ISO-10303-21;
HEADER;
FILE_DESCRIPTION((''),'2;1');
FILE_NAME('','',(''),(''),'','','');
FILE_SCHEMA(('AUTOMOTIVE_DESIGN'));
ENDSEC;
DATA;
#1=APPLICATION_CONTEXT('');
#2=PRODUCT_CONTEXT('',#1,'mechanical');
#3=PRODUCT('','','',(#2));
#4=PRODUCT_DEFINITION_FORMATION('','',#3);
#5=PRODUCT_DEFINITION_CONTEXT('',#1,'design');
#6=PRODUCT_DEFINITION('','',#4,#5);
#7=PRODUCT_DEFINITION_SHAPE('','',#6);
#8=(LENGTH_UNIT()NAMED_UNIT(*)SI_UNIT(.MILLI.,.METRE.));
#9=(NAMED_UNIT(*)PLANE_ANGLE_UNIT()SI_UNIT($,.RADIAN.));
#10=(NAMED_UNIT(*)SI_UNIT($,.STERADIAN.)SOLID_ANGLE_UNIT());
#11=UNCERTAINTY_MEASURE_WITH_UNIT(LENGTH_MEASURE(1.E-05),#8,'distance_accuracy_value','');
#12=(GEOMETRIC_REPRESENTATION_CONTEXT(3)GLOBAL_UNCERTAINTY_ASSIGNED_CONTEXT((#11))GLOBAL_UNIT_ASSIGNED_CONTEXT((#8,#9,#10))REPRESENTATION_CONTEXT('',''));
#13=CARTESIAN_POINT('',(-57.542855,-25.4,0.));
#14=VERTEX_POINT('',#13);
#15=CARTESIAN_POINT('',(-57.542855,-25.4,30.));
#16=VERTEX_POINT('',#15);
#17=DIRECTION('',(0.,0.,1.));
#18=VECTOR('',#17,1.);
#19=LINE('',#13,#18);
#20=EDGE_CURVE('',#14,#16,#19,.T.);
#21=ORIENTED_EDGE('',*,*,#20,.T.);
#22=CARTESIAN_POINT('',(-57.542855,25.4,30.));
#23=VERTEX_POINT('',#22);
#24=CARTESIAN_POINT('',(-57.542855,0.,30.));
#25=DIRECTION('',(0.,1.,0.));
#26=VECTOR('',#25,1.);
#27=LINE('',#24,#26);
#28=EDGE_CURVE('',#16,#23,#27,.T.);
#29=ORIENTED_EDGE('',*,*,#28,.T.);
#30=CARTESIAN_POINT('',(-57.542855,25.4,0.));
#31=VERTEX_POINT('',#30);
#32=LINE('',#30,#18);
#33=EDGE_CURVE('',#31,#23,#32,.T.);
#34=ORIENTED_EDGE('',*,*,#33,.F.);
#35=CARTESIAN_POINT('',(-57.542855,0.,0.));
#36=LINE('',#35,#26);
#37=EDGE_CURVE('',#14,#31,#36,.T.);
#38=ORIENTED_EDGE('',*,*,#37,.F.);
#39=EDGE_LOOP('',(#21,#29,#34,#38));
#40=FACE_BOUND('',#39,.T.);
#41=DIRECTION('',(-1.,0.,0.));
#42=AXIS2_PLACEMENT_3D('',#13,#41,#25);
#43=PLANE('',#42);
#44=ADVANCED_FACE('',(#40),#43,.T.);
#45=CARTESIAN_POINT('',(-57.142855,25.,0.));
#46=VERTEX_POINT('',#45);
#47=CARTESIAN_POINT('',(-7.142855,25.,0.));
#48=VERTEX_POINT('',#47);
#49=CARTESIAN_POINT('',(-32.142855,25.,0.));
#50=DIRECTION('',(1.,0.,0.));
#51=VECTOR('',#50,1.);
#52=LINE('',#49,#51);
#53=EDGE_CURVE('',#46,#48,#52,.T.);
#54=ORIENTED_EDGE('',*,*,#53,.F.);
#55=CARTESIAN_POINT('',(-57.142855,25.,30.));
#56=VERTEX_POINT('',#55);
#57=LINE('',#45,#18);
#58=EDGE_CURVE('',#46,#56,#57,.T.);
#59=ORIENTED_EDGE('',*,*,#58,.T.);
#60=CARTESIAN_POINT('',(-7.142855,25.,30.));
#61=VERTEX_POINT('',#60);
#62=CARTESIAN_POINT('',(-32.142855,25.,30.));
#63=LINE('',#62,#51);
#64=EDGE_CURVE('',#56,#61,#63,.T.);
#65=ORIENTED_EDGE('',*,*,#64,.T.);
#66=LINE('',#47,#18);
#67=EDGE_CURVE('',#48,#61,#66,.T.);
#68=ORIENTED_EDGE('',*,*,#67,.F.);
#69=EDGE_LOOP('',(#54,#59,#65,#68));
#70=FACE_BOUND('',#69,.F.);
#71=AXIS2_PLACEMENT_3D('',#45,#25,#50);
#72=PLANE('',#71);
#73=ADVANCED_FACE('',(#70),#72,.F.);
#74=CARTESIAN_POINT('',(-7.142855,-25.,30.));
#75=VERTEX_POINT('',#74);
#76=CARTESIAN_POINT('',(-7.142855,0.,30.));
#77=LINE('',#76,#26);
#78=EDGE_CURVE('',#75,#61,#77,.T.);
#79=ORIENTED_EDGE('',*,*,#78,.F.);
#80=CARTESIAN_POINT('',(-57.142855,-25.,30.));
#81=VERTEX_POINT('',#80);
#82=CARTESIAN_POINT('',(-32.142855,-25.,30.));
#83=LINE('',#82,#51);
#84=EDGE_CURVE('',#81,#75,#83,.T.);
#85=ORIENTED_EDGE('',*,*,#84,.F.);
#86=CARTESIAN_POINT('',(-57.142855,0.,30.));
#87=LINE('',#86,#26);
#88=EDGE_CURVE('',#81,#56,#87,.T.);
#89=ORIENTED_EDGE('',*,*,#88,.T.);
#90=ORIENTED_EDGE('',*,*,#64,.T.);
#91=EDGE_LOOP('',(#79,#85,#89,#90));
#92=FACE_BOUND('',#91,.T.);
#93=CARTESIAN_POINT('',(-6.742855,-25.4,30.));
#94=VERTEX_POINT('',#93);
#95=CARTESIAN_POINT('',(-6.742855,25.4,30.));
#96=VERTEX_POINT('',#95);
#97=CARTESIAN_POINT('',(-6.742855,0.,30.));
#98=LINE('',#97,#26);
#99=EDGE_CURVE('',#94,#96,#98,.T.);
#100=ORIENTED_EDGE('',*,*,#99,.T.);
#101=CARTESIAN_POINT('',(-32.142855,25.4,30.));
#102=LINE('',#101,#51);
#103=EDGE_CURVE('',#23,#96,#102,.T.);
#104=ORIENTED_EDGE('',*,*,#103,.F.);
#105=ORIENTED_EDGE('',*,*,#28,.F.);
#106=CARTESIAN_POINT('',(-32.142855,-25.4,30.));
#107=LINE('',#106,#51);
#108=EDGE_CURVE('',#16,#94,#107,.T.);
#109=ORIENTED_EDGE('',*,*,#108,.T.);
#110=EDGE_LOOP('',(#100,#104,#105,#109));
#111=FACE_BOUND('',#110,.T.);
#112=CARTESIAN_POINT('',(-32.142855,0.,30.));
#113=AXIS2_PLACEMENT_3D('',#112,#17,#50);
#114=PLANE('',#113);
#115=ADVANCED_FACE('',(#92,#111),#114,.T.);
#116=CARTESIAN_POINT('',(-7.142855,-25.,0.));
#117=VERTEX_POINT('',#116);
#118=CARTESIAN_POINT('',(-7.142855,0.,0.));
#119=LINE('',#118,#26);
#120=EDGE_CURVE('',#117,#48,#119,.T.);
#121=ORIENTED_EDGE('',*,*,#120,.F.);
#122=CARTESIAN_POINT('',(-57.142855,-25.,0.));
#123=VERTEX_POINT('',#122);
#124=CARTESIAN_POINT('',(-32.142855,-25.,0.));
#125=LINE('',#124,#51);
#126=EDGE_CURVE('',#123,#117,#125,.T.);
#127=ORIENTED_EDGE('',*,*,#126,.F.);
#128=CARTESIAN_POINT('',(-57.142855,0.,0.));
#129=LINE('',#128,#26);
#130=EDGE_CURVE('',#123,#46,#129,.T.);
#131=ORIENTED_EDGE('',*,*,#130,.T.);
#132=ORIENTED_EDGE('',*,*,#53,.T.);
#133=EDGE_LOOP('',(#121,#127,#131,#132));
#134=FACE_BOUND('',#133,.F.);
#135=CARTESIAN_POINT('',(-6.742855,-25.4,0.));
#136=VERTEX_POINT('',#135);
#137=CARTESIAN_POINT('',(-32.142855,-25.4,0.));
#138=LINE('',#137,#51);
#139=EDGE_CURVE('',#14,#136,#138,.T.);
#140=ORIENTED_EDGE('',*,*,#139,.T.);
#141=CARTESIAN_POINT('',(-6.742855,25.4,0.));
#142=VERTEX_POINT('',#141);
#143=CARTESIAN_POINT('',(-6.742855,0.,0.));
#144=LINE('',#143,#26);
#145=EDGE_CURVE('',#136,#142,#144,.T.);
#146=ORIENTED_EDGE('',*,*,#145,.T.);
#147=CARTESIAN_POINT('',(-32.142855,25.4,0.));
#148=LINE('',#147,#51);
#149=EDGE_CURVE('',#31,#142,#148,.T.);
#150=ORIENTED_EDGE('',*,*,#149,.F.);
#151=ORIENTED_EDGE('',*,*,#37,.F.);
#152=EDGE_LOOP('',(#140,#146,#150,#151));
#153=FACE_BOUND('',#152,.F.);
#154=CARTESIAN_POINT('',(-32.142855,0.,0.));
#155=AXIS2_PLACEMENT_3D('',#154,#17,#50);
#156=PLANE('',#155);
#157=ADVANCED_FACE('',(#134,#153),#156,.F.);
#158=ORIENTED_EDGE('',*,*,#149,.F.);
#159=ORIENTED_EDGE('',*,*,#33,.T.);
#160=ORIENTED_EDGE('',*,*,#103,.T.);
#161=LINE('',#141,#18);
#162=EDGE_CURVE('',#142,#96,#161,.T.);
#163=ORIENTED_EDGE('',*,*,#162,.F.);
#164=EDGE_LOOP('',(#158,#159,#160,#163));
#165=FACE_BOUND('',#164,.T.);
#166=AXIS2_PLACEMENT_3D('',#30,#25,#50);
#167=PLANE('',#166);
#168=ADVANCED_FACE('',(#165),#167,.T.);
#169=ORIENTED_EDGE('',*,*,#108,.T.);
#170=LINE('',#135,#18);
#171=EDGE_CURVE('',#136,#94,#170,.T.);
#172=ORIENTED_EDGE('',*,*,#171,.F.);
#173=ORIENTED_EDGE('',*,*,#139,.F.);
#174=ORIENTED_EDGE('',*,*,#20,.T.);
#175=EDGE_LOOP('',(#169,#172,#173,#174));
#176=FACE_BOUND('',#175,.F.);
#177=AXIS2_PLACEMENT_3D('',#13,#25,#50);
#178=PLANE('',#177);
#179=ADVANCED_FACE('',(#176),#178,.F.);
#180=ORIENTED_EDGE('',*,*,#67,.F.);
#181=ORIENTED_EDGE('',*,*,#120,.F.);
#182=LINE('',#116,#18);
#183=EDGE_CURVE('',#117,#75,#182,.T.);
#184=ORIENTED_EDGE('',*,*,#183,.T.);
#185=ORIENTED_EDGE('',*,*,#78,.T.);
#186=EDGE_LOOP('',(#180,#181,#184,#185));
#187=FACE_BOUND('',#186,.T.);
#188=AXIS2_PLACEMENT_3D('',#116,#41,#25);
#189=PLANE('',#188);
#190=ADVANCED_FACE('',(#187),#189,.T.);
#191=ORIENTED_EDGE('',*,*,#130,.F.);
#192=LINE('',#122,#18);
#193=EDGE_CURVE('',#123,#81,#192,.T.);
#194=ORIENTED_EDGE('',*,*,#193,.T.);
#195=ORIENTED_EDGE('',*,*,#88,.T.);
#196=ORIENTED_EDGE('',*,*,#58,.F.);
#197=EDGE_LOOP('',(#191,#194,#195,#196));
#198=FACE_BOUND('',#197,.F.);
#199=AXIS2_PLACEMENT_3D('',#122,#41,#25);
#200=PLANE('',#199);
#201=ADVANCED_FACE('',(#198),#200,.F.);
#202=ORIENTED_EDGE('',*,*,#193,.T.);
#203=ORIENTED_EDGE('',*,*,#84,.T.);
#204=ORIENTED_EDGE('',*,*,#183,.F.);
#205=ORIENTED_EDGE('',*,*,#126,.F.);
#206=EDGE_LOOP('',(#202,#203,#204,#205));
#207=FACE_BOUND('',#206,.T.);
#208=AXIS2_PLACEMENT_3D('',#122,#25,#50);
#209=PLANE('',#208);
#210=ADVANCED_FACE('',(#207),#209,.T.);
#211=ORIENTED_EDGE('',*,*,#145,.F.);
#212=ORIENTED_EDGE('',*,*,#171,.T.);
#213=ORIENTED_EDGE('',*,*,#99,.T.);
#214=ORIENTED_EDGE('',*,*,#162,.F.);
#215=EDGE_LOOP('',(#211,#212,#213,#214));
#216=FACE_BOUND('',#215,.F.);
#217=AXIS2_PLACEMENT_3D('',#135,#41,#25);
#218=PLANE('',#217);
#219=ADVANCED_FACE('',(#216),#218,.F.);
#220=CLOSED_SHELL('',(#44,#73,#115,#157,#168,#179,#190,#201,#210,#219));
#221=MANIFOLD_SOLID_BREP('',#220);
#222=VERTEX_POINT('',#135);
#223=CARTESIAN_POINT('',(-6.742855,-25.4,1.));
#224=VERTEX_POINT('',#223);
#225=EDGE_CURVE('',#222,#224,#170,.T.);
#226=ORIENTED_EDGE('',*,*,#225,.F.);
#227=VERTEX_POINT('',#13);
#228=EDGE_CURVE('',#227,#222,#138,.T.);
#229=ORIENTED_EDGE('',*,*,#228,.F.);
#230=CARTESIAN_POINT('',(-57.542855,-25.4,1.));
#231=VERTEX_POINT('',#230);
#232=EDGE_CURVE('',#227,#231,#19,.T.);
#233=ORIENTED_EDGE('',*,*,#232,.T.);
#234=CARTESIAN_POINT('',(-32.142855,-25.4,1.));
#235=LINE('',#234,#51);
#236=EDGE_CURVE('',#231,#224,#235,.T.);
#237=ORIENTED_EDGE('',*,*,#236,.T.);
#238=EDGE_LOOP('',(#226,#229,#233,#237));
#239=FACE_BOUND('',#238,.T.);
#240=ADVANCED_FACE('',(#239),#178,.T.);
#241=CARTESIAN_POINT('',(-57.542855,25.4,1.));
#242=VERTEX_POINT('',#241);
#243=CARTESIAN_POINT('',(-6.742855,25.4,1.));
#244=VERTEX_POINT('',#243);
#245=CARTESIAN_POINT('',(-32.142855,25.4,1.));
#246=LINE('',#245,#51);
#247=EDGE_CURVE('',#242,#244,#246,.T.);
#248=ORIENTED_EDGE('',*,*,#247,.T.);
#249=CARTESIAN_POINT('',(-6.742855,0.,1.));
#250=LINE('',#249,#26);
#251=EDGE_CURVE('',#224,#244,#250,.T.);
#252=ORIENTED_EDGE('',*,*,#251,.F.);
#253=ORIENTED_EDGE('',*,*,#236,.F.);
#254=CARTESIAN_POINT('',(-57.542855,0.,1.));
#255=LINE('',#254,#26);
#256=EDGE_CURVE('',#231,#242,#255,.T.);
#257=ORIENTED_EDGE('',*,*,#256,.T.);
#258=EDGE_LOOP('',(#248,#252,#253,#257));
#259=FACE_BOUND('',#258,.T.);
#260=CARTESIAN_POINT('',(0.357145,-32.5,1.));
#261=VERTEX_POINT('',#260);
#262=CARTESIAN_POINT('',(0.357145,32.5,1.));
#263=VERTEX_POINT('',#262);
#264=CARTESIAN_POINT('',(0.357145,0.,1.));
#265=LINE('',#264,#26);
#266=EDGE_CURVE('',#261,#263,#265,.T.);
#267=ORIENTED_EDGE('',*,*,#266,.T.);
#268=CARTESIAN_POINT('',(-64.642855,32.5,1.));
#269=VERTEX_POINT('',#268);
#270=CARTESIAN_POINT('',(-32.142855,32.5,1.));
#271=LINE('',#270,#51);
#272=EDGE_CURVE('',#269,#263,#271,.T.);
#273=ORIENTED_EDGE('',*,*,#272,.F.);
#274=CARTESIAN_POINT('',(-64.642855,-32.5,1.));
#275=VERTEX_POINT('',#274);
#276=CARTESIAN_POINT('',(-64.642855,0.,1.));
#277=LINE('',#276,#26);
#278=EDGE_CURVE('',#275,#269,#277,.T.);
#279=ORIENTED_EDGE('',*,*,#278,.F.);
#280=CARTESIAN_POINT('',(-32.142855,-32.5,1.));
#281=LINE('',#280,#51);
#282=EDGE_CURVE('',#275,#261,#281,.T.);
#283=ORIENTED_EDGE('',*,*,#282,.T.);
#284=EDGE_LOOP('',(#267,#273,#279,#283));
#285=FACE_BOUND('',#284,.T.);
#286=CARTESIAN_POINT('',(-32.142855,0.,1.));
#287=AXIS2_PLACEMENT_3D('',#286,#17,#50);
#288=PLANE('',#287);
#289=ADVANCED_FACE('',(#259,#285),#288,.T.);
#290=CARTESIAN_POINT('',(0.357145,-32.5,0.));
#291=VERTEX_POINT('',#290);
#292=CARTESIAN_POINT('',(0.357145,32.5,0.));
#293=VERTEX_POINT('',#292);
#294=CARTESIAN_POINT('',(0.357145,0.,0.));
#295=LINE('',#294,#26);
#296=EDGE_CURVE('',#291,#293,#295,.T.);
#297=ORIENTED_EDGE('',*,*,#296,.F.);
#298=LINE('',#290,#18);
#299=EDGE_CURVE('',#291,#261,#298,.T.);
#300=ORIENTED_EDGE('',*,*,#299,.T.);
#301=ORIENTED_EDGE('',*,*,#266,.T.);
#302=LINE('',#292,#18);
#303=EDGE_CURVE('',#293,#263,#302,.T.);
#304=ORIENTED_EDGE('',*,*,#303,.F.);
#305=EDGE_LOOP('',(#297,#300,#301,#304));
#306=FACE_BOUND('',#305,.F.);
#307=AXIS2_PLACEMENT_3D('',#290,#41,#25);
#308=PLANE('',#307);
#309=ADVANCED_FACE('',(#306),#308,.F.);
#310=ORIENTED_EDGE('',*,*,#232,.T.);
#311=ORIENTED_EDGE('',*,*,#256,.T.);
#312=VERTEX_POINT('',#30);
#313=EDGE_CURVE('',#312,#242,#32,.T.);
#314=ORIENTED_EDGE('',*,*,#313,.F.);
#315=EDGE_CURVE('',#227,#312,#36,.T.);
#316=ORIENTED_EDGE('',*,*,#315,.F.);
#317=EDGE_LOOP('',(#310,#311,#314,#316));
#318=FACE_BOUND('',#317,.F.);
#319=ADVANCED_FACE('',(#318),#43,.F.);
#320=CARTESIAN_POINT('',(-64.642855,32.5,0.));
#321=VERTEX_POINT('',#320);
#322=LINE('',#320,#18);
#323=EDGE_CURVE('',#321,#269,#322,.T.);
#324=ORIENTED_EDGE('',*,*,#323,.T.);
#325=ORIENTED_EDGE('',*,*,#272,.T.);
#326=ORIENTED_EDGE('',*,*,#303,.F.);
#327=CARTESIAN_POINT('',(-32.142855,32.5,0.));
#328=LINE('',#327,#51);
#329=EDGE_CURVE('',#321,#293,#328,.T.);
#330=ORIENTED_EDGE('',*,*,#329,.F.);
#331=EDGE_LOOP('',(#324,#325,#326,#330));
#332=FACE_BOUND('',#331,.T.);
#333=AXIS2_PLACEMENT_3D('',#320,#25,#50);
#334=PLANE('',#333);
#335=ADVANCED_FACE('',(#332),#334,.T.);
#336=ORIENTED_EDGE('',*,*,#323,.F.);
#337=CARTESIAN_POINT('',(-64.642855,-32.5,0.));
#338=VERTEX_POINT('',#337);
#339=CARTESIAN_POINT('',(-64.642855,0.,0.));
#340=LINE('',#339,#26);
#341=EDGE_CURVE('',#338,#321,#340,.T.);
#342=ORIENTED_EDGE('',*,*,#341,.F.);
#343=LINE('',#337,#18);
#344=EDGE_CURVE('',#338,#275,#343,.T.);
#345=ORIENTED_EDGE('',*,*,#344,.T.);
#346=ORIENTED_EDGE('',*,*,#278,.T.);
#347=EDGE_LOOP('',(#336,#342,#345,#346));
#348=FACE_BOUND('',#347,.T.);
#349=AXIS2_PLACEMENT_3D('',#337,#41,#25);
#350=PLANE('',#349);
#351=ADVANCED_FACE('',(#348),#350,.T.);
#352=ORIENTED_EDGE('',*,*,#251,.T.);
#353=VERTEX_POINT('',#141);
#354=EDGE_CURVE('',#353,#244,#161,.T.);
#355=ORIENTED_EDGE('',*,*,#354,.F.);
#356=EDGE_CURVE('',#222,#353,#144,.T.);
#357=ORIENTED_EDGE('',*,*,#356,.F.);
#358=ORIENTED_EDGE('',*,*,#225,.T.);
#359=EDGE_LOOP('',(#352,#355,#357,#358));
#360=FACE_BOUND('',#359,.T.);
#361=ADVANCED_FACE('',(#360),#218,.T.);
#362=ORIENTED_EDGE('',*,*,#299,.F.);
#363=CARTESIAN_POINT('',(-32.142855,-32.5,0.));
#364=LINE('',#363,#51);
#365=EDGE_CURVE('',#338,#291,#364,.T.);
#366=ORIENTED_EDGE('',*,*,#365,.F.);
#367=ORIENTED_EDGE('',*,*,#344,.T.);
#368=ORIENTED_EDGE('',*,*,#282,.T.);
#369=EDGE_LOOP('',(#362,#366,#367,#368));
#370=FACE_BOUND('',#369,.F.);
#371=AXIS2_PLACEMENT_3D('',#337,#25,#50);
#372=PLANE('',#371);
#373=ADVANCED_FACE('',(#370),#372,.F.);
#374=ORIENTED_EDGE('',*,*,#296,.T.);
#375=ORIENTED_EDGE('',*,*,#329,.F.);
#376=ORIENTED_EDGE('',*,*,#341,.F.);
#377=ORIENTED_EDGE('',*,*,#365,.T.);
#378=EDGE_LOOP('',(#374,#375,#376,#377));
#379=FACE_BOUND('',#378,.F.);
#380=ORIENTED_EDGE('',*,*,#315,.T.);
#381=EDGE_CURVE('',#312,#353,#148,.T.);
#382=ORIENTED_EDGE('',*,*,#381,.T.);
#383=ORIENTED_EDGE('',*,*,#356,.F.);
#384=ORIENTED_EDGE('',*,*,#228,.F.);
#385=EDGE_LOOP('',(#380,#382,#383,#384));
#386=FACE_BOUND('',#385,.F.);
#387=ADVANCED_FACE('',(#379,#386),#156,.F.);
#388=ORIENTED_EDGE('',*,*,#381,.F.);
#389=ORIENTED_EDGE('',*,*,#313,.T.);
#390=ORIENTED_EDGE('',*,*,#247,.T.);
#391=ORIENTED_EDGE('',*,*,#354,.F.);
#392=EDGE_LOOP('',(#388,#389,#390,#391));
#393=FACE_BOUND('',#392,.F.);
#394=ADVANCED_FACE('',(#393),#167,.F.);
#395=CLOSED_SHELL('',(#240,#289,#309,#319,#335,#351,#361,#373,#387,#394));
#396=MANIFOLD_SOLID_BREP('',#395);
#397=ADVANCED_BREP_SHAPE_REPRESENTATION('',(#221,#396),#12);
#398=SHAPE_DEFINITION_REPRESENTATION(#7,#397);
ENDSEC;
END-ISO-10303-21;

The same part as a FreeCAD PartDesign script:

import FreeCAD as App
import Part
import Sketcher
from FreeCAD import Vector
Q = App.Units.Quantity


def add_polygon(sketch, points):
    """Adds a closed chain of lines whose ends are joined by coincident constraints."""
    first, n = sketch.GeometryCount, len(points)
    for a, b in zip(points, points[1:] + points[:1]):
        sketch.addGeometry(Part.LineSegment(App.Vector(*a, 0), App.Vector(*b, 0)), False)
    for i in range(n):
        sketch.addConstraint(Sketcher.Constraint("Coincident", first + i, 2, first + (i + 1) % n, 1))

doc = App.newDocument("Part")
body = doc.addObject("PartDesign::Body", "Body")

# Sketch on XY plane
sketch1 = body.newObject("Sketcher::SketchObject", "Sketch")
sketch1.AttachmentSupport = (doc.getObject("XY_Plane"), [""])
sketch1.MapMode = "FlatFace"
add_polygon(sketch1, [(-57.542855, 25.4), (-57.542855, -25.4), (-6.742855, -25.4), (-6.742855, 25.4)])  # lines 0-3
add_polygon(sketch1, [(-7.142855, -25), (-57.142855, -25), (-57.142855, 25), (-7.142855, 25)])  # lines 4-7
sketch1.addConstraint([
    Sketcher.Constraint("Vertical", 0),
    Sketcher.Constraint("Horizontal", 1),
    Sketcher.Constraint("Vertical", 2),
    Sketcher.Constraint("Horizontal", 3),
    Sketcher.Constraint("Horizontal", 4),
    Sketcher.Constraint("Vertical", 5),
    Sketcher.Constraint("Horizontal", 6),
    Sketcher.Constraint("Vertical", 7),
    Sketcher.Constraint("Equal", 3, 0),
    Sketcher.Constraint("Equal", 6, 5),
    Sketcher.Constraint("DistanceX", 4, 2, 4, 1, Q("50 mm")),
    Sketcher.Constraint("DistanceX", 1, 1, 1, 2, Q("50.8 mm")),
    Sketcher.Constraint("DistanceY", 4, 2, -1, 1, Q("25 mm")),
    Sketcher.Constraint("DistanceY", 0, 2, -1, 1, Q("25.4 mm")),
    Sketcher.Constraint("DistanceX", 0, 2, 4, 2, Q("0.4 mm")),
    Sketcher.Constraint("DistanceX", 0, 2, -1, 1, Q("57.542855 mm")),
])
pad1 = body.newObject("PartDesign::Pad", "Pad")
pad1.Profile = sketch1
pad1.Length = 30
body2 = doc.addObject("PartDesign::Body", "Body001")

# Sketch on XY plane
sketch2 = body2.newObject("Sketcher::SketchObject", "Sketch001")
sketch2.AttachmentSupport = (doc.getObject("XY_Plane001"), [""])
sketch2.MapMode = "FlatFace"
add_polygon(sketch2, [(-64.642855, 32.5), (-64.642855, -32.5), (0.357145, -32.5), (0.357145, 32.5)])  # lines 0-3
add_polygon(sketch2, [(-6.742855, -25.4), (-57.542855, -25.4), (-57.542855, 25.4), (-6.742855, 25.4)])  # lines 4-7
sketch2.addConstraint([
    Sketcher.Constraint("Vertical", 0),
    Sketcher.Constraint("Horizontal", 1),
    Sketcher.Constraint("Vertical", 2),
    Sketcher.Constraint("Horizontal", 3),
    Sketcher.Constraint("Horizontal", 4),
    Sketcher.Constraint("Vertical", 5),
    Sketcher.Constraint("Horizontal", 6),
    Sketcher.Constraint("Vertical", 7),
    Sketcher.Constraint("Equal", 3, 0),
    Sketcher.Constraint("Equal", 6, 5),
    Sketcher.Constraint("DistanceX", 1, 1, 1, 2, Q("65 mm")),
    Sketcher.Constraint("DistanceX", 4, 2, 4, 1, Q("50.8 mm")),
    Sketcher.Constraint("DistanceY", 0, 2, -1, 1, Q("32.5 mm")),
    Sketcher.Constraint("DistanceY", 4, 2, -1, 1, Q("25.4 mm")),
    Sketcher.Constraint("DistanceX", 0, 2, 4, 2, Q("7.1 mm")),
    Sketcher.Constraint("DistanceX", 0, 2, -1, 1, Q("64.642855 mm")),
])
pad2 = body2.newObject("PartDesign::Pad", "Pad001")
pad2.Profile = sketch2
pad2.Length = 1

doc.recompute()
